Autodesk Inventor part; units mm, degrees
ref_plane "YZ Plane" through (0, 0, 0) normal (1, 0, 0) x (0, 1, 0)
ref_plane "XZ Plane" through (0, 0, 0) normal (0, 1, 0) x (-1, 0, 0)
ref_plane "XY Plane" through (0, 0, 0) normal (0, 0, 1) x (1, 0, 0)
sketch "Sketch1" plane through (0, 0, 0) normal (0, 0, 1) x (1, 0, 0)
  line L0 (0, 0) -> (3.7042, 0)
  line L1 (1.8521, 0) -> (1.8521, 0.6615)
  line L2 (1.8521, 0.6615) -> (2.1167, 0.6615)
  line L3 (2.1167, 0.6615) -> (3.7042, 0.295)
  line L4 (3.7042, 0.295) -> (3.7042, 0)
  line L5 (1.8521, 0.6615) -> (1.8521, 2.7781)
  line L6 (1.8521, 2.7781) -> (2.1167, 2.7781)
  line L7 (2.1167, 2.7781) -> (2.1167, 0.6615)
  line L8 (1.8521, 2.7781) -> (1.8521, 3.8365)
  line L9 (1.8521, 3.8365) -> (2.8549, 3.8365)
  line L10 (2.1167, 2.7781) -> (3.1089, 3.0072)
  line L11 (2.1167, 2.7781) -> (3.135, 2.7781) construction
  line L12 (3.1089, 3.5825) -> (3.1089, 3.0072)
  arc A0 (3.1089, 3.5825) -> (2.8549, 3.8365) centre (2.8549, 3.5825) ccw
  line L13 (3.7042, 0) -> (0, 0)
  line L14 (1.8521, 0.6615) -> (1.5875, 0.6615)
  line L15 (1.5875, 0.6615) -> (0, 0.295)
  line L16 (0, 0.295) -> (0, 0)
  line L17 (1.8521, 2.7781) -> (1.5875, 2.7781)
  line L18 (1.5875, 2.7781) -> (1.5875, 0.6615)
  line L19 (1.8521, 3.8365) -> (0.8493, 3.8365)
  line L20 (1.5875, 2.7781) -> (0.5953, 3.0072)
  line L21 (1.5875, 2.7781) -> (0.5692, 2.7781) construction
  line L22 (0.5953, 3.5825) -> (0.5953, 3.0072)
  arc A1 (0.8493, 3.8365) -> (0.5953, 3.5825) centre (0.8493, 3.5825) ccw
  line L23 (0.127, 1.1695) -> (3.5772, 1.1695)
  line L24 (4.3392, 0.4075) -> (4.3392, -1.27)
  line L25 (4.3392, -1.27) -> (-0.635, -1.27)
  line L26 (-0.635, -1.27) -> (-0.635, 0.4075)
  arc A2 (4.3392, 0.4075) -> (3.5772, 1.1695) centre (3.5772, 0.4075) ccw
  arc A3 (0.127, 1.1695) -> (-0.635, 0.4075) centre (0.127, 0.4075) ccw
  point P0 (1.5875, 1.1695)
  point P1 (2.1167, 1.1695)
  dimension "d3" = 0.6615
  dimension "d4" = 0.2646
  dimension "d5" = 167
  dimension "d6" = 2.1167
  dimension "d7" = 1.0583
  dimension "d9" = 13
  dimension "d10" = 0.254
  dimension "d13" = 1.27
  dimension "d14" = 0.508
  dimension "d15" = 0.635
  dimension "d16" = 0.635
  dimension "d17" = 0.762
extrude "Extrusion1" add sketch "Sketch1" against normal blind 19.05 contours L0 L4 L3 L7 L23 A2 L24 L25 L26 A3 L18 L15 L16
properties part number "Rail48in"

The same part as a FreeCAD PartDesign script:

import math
import FreeCAD as App
import Part
import Sketcher

V = App.Vector
Q = App.Units.Quantity

doc = App.newDocument("Part")
body = doc.addObject("PartDesign::Body", "Body")

sketch1 = doc.addObject("Sketcher::SketchObject", "Sketch")
body.addObject(sketch1)
sketch1.AttachmentSupport = (doc.XY_Plane, [""])
sketch1.MapMode = "FlatFace"
sketch1.addGeometry(Part.LineSegment(V(3.7042, 0, 0), V(0, 0, 0)), False)
sketch1.addGeometry(Part.LineSegment(V(0, 0, 0), V(0, 0.295, 0)), False)
sketch1.addGeometry(Part.LineSegment(V(0, 0.295, 0), V(1.5875, 0.6615, 0)), False)
sketch1.addGeometry(Part.LineSegment(V(1.5875, 0.6615, 0), V(1.5875, 1.1695, 0)), False)
sketch1.addGeometry(Part.LineSegment(V(1.5875, 1.1695, 0), V(0.127, 1.1695, 0)), False)
sketch1.addGeometry(Part.ArcOfCircle(Part.Circle(V(0.127, 0.4075, 0), V(0, 0, 1), 0.762), math.radians(90), math.radians(180)), False)
sketch1.addGeometry(Part.LineSegment(V(-0.635, 0.4075, 0), V(-0.635, -1.27, 0)), False)
sketch1.addGeometry(Part.LineSegment(V(-0.635, -1.27, 0), V(4.3392, -1.27, 0)), False)
sketch1.addGeometry(Part.LineSegment(V(4.3392, -1.27, 0), V(4.3392, 0.4075, 0)), False)
sketch1.addGeometry(Part.ArcOfCircle(Part.Circle(V(3.5772, 0.4075, 0), V(0, 0, 1), 0.762), math.radians(0), math.radians(90)), False)
sketch1.addGeometry(Part.LineSegment(V(3.5772, 1.1695, 0), V(2.1167, 1.1695, 0)), False)
sketch1.addGeometry(Part.LineSegment(V(2.1167, 1.1695, 0), V(2.1167, 0.6615, 0)), False)
sketch1.addGeometry(Part.LineSegment(V(2.1167, 0.6615, 0), V(3.7042, 0.295, 0)), False)
sketch1.addGeometry(Part.LineSegment(V(3.7042, 0.295, 0), V(3.7042, 0, 0)), False)
sketch1.addConstraint(Sketcher.Constraint("Coincident", 0, 2, 1, 1))
sketch1.addConstraint(Sketcher.Constraint("Coincident", 1, 2, 2, 1))
sketch1.addConstraint(Sketcher.Constraint("Coincident", 2, 2, 3, 1))
sketch1.addConstraint(Sketcher.Constraint("Coincident", 3, 2, 4, 1))
sketch1.addConstraint(Sketcher.Constraint("Tangent", 4, 2, 5, 1))
sketch1.addConstraint(Sketcher.Constraint("Tangent", 5, 2, 6, 1))
sketch1.addConstraint(Sketcher.Constraint("Coincident", 6, 2, 7, 1))
sketch1.addConstraint(Sketcher.Constraint("Coincident", 7, 2, 8, 1))
sketch1.addConstraint(Sketcher.Constraint("Tangent", 8, 2, 9, 1))
sketch1.addConstraint(Sketcher.Constraint("Tangent", 9, 2, 10, 1))
sketch1.addConstraint(Sketcher.Constraint("Coincident", 10, 2, 11, 1))
sketch1.addConstraint(Sketcher.Constraint("Coincident", 11, 2, 12, 1))
sketch1.addConstraint(Sketcher.Constraint("Coincident", 12, 2, 13, 1))
sketch1.addConstraint(Sketcher.Constraint("Coincident", 13, 2, 0, 1))
sketch1.addConstraint(Sketcher.Constraint("Horizontal", 0))
sketch1.addConstraint(Sketcher.Constraint("Vertical", 1))
sketch1.addConstraint(Sketcher.Constraint("Vertical", 3))
sketch1.addConstraint(Sketcher.Constraint("Horizontal", 4))
sketch1.addConstraint(Sketcher.Constraint("Vertical", 6))
sketch1.addConstraint(Sketcher.Constraint("Horizontal", 7))
sketch1.addConstraint(Sketcher.Constraint("Vertical", 8))
sketch1.addConstraint(Sketcher.Constraint("Horizontal", 10))
sketch1.addConstraint(Sketcher.Constraint("Vertical", 11))
sketch1.addConstraint(Sketcher.Constraint("Vertical", 13))
sketch1.addConstraint(Sketcher.Constraint("Coincident", 0, 2, -1, 1))
sketch1.addConstraint(Sketcher.Constraint("Equal", 5, 9))
sketch1.addConstraint(Sketcher.Constraint("Horizontal", 5, 3, 9, 3))
sketch1.addConstraint(Sketcher.Constraint("Horizontal", 2, 2, 11, 2))
sketch1.addConstraint(Sketcher.Constraint("Horizontal", 1, 2, 12, 2))
sketch1.addConstraint(Sketcher.Constraint("Equal", 4, 10))
sketch1.addConstraint(Sketcher.Constraint("Equal", 2, 12))
sketch1.addConstraint(Sketcher.Constraint("Radius", 5, Q("0.03 in")))
sketch1.addConstraint(Sketcher.Constraint("Angle", 2, Q("13 deg")))
sketch1.addConstraint(Sketcher.Constraint("DistanceY", 3, 1, 3, 2, Q("0.02 in")))
sketch1.addConstraint(Sketcher.Constraint("DistanceY", 6, 2, -1, 1, Q("0.05 in")))
sketch1.addConstraint(Sketcher.Constraint("DistanceX", 5, 2, -1, 1, Q("0.025 in")))
sketch1.addConstraint(Sketcher.Constraint("DistanceY", -1, 1, 2, 2, Q("0.6615 mm")))
sketch1.addConstraint(Sketcher.Constraint("DistanceX", -1, 1, 10, 2, Q("2.1167 mm")))
sketch1.addConstraint(Sketcher.Constraint("DistanceX", 4, 2, 4, 1, Q("0.0575 in")))
pad1 = doc.addObject("PartDesign::Pad", "Pad")
body.addObject(pad1)
pad1.Profile = sketch1
pad1.Length = Q("0.75 in")
pad1.Reversed = True

doc.recompute()
